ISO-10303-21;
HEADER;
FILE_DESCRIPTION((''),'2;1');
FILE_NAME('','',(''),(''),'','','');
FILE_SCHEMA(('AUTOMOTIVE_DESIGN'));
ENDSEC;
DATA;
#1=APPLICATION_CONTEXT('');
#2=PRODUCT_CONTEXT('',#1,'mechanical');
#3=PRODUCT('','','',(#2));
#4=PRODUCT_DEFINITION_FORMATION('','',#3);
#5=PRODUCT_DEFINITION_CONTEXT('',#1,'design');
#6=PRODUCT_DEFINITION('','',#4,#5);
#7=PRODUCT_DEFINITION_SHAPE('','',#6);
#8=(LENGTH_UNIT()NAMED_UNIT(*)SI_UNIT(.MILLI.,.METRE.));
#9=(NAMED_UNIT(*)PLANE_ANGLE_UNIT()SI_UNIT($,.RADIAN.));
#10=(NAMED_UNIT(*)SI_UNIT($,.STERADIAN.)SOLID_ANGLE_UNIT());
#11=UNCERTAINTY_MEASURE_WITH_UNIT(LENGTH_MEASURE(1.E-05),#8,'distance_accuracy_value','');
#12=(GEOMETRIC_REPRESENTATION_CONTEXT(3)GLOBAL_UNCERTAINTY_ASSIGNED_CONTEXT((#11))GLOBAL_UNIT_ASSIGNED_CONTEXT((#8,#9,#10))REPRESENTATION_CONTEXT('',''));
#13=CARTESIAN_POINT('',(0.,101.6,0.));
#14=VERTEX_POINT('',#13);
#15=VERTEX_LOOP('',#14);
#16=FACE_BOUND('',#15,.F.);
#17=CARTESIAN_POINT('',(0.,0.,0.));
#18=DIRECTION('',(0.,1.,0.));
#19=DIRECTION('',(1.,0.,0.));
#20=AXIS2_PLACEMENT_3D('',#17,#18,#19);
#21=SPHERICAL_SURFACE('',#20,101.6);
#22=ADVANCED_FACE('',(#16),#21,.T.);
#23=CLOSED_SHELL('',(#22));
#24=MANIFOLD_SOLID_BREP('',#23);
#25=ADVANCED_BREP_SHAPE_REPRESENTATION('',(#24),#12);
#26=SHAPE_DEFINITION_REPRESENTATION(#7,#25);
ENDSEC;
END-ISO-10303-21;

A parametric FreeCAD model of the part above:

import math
import FreeCAD as App
import Part
import Sketcher
from FreeCAD import Vector
Q = App.Units.Quantity

doc = App.newDocument("Part")
body = doc.addObject("PartDesign::Body", "Body")

# Sketch on XY plane
sketch1 = doc.addObject("Sketcher::SketchObject", "Sketch")
body.addObject(sketch1)
sketch1.AttachmentSupport = (doc.XY_Plane, [""])
sketch1.MapMode = "FlatFace"
sketch1.addGeometry([
    Part.LineSegment(Vector(0, 102, 0), Vector(0, -102, 0)),
    Part.ArcOfCircle(Part.Circle(Vector(0, 0, 0), Vector(0, 0, 1), 102), math.radians(-90), math.radians(90)),
], False)
sketch1.addConstraint([
    Sketcher.Constraint("Coincident", 0, 1, 1, 2),
    Sketcher.Constraint("Coincident", 1, 1, 0, 2),
    Sketcher.Constraint("Vertical", 0),
    Sketcher.Constraint("Coincident", 1, 3, -1, 1),
    Sketcher.Constraint("PointOnObject", 0, 1, -2),
    Sketcher.Constraint("Radius", 1, Q("4 in")),
])
revolution = doc.addObject("PartDesign::Revolution", "Revolution")
body.addObject(revolution)
revolution.Profile = sketch1
revolution.ReferenceAxis = (sketch1, ["V_Axis"])
revolution.Angle = 360

doc.recompute()
